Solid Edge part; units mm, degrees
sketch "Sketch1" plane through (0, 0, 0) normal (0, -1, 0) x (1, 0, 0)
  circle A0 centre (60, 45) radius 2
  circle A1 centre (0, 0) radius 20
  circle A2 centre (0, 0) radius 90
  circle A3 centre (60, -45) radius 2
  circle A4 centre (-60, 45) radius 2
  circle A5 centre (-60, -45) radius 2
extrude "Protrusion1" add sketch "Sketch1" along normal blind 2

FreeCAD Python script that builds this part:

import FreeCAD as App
import Part
import Sketcher
from FreeCAD import Vector

doc = App.newDocument("Part")
body = doc.addObject("PartDesign::Body", "Body")

sketch1 = body.newObject("Sketcher::SketchObject", "Sketch")
sketch1.AttachmentSupport = (doc.getObject("XZ_Plane"), [""])
sketch1.MapMode = "FlatFace"
sketch1.addGeometry([
    Part.Circle(Vector(0, 0, 0), Vector(0, 0, 1), 90),
    Part.Circle(Vector(-60, -45, 0), Vector(0, 0, 1), 2),
    Part.Circle(Vector(60, -45, 0), Vector(0, 0, 1), 2),
    Part.Circle(Vector(-60, 45, 0), Vector(0, 0, 1), 2),
    Part.Circle(Vector(0, 0, 0), Vector(0, 0, 1), 20),
    Part.Circle(Vector(60, 45, 0), Vector(0, 0, 1), 2),
], False)
sketch1.addConstraint([
    Sketcher.Constraint("Coincident", 0, 3, -1, 1),
    Sketcher.Constraint("Coincident", 4, 3, -1, 1),
    Sketcher.Constraint("Equal", 1, 2),
    Sketcher.Constraint("Equal", 2, 3),
    Sketcher.Constraint("Equal", 3, 5),
    Sketcher.Constraint("Symmetric", 2, 3, 3, 3, -1, 1),
    Sketcher.Constraint("Symmetric", 1, 3, 5, 3, -1, 1),
    Sketcher.Constraint("Symmetric", 1, 3, 2, 3, -2),
    Sketcher.Constraint("Diameter", 0, 180.0),
    Sketcher.Constraint("Diameter", 1, 4.0),
    Sketcher.Constraint("Diameter", 4, 40.0),
    Sketcher.Constraint("DistanceX", 1, 3, -1, 1, 60.0),
    Sketcher.Constraint("DistanceY", 1, 3, -1, 1, 45.0),
])
pad1 = body.newObject("PartDesign::Pad", "Pad")
pad1.Profile = sketch1
pad1.Length = 2

doc.recompute()
